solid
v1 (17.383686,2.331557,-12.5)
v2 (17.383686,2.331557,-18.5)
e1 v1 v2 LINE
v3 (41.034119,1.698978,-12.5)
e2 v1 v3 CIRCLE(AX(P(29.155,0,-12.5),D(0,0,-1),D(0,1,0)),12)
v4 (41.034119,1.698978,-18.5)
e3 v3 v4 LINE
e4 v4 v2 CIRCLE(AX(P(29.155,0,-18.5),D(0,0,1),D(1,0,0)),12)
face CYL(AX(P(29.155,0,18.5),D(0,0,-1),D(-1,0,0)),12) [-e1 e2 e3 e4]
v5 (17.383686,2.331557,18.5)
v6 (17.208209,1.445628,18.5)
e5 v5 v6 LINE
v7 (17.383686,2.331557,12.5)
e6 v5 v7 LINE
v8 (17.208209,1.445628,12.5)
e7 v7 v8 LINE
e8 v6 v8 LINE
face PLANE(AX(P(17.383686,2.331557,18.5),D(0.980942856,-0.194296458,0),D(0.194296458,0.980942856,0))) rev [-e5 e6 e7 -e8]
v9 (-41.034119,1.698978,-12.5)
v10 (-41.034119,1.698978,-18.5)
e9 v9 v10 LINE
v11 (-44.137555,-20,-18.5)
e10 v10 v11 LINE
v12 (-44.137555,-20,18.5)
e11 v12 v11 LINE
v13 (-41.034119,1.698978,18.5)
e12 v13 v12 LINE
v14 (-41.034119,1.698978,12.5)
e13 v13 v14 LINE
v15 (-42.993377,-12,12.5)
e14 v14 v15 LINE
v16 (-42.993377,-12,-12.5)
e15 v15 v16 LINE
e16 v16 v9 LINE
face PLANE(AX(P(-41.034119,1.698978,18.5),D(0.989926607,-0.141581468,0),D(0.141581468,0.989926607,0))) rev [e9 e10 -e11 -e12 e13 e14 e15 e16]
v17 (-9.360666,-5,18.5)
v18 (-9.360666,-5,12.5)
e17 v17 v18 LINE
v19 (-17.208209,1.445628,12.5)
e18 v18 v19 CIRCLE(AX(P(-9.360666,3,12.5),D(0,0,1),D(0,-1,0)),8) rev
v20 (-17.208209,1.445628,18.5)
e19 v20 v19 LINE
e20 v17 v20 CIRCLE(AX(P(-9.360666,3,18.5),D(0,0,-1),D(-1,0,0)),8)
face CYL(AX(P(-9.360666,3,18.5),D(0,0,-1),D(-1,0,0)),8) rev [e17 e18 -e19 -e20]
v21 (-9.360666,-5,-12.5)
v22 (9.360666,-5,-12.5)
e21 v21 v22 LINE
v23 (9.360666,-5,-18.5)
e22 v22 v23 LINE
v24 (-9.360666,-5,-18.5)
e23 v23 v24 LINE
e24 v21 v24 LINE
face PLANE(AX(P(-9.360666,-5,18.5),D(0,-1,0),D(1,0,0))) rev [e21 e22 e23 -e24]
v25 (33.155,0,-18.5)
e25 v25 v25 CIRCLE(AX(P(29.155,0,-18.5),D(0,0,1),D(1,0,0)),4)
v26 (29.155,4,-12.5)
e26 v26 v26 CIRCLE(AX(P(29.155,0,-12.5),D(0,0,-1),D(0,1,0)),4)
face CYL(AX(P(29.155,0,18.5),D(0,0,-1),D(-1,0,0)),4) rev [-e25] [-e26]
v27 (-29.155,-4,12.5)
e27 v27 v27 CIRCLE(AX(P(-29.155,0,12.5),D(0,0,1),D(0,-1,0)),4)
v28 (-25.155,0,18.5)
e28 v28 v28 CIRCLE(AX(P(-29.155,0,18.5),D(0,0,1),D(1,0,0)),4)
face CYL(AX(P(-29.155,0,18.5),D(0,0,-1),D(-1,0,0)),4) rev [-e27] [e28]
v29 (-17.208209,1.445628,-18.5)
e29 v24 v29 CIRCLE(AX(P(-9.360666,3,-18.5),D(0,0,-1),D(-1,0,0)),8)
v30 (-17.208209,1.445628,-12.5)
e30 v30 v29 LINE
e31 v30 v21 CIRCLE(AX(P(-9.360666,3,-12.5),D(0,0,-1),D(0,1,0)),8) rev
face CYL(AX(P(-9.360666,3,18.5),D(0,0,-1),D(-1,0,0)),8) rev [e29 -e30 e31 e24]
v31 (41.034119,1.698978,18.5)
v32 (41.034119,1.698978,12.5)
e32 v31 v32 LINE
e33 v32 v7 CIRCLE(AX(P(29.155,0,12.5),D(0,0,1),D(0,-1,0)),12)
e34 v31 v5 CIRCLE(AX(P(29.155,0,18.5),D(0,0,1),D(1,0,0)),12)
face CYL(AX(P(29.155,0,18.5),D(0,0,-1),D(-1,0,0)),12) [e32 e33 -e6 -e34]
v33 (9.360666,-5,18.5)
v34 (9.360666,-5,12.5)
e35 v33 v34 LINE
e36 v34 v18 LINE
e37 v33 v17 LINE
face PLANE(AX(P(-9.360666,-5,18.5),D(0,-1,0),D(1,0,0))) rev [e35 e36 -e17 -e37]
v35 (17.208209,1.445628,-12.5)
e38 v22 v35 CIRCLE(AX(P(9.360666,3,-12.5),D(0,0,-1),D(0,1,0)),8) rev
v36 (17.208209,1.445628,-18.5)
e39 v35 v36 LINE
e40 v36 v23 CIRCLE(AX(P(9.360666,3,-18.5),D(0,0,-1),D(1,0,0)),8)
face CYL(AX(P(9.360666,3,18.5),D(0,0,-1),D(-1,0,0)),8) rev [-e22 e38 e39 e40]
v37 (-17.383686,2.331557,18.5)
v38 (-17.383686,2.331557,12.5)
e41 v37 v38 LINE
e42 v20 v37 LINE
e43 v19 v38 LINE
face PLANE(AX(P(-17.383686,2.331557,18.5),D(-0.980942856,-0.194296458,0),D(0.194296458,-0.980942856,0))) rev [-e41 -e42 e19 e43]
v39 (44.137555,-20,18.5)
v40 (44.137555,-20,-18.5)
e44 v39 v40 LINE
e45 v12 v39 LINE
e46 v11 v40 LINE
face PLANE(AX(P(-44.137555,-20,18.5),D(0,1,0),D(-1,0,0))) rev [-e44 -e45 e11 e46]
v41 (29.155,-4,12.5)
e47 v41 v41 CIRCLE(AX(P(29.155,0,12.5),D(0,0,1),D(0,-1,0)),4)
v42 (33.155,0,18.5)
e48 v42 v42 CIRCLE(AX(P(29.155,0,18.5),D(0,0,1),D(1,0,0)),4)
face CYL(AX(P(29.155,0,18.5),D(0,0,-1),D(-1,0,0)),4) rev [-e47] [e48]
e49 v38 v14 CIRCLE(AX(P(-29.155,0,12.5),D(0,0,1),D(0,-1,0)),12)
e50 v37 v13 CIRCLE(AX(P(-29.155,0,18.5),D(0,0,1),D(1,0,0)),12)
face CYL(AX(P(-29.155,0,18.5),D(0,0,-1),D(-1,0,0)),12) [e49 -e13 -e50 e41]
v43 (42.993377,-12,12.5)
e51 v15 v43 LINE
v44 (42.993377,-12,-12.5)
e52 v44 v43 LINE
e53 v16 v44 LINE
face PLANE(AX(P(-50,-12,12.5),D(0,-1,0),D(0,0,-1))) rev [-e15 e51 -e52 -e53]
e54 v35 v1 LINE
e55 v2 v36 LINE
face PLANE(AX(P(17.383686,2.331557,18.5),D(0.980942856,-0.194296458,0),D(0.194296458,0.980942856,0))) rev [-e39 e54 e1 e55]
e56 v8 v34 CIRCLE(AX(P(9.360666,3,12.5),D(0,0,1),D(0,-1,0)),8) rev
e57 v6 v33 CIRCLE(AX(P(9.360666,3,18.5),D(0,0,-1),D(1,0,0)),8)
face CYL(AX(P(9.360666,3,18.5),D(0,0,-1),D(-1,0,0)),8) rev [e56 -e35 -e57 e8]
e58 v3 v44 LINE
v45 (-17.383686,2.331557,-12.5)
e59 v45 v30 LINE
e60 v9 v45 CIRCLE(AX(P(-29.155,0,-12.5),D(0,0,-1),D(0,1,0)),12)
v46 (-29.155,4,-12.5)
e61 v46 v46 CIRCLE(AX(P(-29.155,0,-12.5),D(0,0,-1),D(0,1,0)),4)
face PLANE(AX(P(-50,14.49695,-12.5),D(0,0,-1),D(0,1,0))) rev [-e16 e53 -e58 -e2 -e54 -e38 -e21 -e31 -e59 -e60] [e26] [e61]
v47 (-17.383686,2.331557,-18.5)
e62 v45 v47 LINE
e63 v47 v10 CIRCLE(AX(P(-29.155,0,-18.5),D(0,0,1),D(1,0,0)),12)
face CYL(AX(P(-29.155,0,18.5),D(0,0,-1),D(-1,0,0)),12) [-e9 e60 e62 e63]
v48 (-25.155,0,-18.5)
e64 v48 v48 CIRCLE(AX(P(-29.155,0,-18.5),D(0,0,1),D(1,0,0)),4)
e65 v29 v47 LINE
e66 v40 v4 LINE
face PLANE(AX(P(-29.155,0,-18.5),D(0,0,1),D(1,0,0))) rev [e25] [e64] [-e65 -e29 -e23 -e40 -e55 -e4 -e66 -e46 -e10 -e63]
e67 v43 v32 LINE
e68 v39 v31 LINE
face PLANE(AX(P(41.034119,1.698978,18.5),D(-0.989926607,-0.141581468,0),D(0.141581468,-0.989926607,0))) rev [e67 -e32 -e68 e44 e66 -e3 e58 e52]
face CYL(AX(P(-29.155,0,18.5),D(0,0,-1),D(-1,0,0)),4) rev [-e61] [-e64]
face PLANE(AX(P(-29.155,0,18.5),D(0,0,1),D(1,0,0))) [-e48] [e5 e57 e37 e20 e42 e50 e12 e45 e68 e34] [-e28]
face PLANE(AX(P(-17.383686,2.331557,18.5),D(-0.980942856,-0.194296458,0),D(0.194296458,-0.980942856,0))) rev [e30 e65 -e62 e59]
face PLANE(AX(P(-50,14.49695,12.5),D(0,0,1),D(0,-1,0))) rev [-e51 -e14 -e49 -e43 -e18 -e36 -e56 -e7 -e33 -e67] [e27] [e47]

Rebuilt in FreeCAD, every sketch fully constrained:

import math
import FreeCAD as App
import Part
import Sketcher
from FreeCAD import Vector


def add_polygon(sketch, points):
    """Adds a closed chain of lines whose ends are joined by coincident constraints."""
    first, n = sketch.GeometryCount, len(points)
    for a, b in zip(points, points[1:] + points[:1]):
        sketch.addGeometry(Part.LineSegment(App.Vector(*a, 0), App.Vector(*b, 0)), False)
    for i in range(n):
        sketch.addConstraint(Sketcher.Constraint("Coincident", first + i, 2, first + (i + 1) % n, 1))

doc = App.newDocument("Part")
params = doc.addObject("Spreadsheet::Sheet", "Params")
for row, (alias, value) in enumerate([
    ("sketch1_diameter", "8 mm"),
    ("sketch1_radius", "12 mm"),
    ("sketch1_radius2", "8 mm"),
    ("pad1_length", "37 mm"),
    ("sketch2_height", "25 mm"),
    ("pocket1_length", "100 mm"),
], start=1):
    params.set(f"A{row}", alias)
    params.set(f"B{row}", "=" + value)
    params.setAlias(f"B{row}", alias)

body = doc.addObject("PartDesign::Body", "Body")

# Sketch on XY plane
sketch1 = doc.addObject("Sketcher::SketchObject", "Sketch")
body.addObject(sketch1)
sketch1.AttachmentSupport = (doc.XY_Plane, [""])
sketch1.MapMode = "FlatFace"
sketch1.addGeometry([
    Part.LineSegment(Vector(-41.034119, 1.698978, 0), Vector(-44.137555, -20, 0)),  # 0
    Part.LineSegment(Vector(-44.137555, -20, 0), Vector(44.137555, -20, 0)),  # 1
    Part.LineSegment(Vector(44.137555, -20, 0), Vector(41.034119, 1.698978, 0)),  # 2
    Part.ArcOfCircle(Part.Circle(Vector(29.155, 0, 0), Vector(0, 0, 1), 12), math.radians(8.139369), math.radians(168.796372)),  # 3
    Part.LineSegment(Vector(17.383686, 2.331557, 0), Vector(17.208209, 1.445628, 0)),  # 4
    Part.ArcOfCircle(Part.Circle(Vector(9.360666, 3, 0), Vector(0, 0, 1), 8), math.radians(-90), math.radians(-11.203628)),  # 5
    Part.LineSegment(Vector(9.360666, -5, 0), Vector(-9.360666, -5, 0)),  # 6
    Part.ArcOfCircle(Part.Circle(Vector(-9.360666, 3, 0), Vector(0, 0, 1), 8), math.radians(-168.796372), math.radians(-90)),  # 7
    Part.LineSegment(Vector(-17.208209, 1.445628, 0), Vector(-17.383686, 2.331557, 0)),  # 8
    Part.ArcOfCircle(Part.Circle(Vector(-29.155, 0, 0), Vector(0, 0, 1), 12), math.radians(11.203628), math.radians(171.860631)),  # 9
    Part.Circle(Vector(-29.155, 0, 0), Vector(0, 0, 1), 4),  # 10
    Part.Circle(Vector(29.155, 0, 0), Vector(0, 0, 1), 4),  # 11
], False)
sketch1.addConstraint([
    Sketcher.Constraint("Coincident", 0, 2, 1, 1),
    Sketcher.Constraint("Coincident", 1, 2, 2, 1),
    Sketcher.Constraint("Tangent", 2, 2, 3, 1),
    Sketcher.Constraint("Tangent", 3, 2, 4, 1),
    Sketcher.Constraint("Tangent", 4, 2, 5, 2),
    Sketcher.Constraint("Tangent", 5, 1, 6, 1),
    Sketcher.Constraint("Tangent", 6, 2, 7, 2),
    Sketcher.Constraint("Tangent", 7, 1, 8, 1),
    Sketcher.Constraint("Tangent", 8, 2, 9, 1),
    Sketcher.Constraint("Tangent", 9, 2, 0, 1),
    Sketcher.Constraint("Horizontal", 1),
    Sketcher.Constraint("Horizontal", 6),
    Sketcher.Constraint("Coincident", 10, 3, 9, 3),
    Sketcher.Constraint("Coincident", 11, 3, 3, 3),
    Sketcher.Constraint("Equal", 5, 7),
    Sketcher.Constraint("Equal", 3, 9),
    Sketcher.Constraint("Equal", 10, 11),
    Sketcher.Constraint("Symmetric", 3, 3, 9, 3, -1, 1),
    Sketcher.Constraint("Symmetric", 4, 2, 7, 1, -2),
    Sketcher.Constraint("Horizontal", 2, 2, 9, 2),
    Sketcher.Constraint("Diameter", 10, 8.0),
    Sketcher.Constraint("Radius", 3, 12.0),
    Sketcher.Constraint("Radius", 5, 8.0),
    Sketcher.Constraint("DistanceY", -1, 1, 5, 3, 3.0),
    Sketcher.Constraint("DistanceY", 0, 2, -1, 1, 20.0),
    Sketcher.Constraint("DistanceX", 9, 3, 3, 3, 58.31),
    Sketcher.Constraint("DistanceX", 1, 1, 1, 2, 88.275109),
    Sketcher.Constraint("DistanceX", 6, 2, 6, 1, 18.721332),
])
sketch1.setExpression("Constraints[20]", "Params.sketch1_diameter")
sketch1.setExpression("Constraints[21]", "Params.sketch1_radius")
sketch1.setExpression("Constraints[22]", "Params.sketch1_radius2")
pad1 = doc.addObject("PartDesign::Pad", "Pad")
body.addObject(pad1)
pad1.Profile = sketch1
pad1.setExpression("Length", "Params.pad1_length")
pad1.Midplane = True

# Sketch on YZ plane
sketch2 = doc.addObject("Sketcher::SketchObject", "Sketch001")
body.addObject(sketch2)
sketch2.AttachmentSupport = (doc.YZ_Plane, [""])
sketch2.MapMode = "FlatFace"
add_polygon(sketch2, [(14.49695, 12.5), (-12, 12.5), (-12, -12.5), (14.49695, -12.5)])  # lines 0-3
sketch2.addConstraint([
    Sketcher.Constraint("Horizontal", 0),
    Sketcher.Constraint("Vertical", 1),
    Sketcher.Constraint("Horizontal", 2),
    Sketcher.Constraint("Vertical", 3),
    Sketcher.Constraint("DistanceY", 1, 2, 1, 1, 25.0),
    Sketcher.Constraint("DistanceX", 0, 2, -1, 1, 12.0),
    Sketcher.Constraint("DistanceY", -1, 1, 0, 2, 12.5),
    Sketcher.Constraint("DistanceX", 0, 2, 0, 1, 26.49695),
])
sketch2.setExpression("Constraints[8]", "Params.sketch2_height")
pocket1 = doc.addObject("PartDesign::Pocket", "Pocket")
body.addObject(pocket1)
pocket1.Profile = sketch2
pocket1.setExpression("Length", "Params.pocket1_length")
pocket1.Midplane = True

doc.recompute()
